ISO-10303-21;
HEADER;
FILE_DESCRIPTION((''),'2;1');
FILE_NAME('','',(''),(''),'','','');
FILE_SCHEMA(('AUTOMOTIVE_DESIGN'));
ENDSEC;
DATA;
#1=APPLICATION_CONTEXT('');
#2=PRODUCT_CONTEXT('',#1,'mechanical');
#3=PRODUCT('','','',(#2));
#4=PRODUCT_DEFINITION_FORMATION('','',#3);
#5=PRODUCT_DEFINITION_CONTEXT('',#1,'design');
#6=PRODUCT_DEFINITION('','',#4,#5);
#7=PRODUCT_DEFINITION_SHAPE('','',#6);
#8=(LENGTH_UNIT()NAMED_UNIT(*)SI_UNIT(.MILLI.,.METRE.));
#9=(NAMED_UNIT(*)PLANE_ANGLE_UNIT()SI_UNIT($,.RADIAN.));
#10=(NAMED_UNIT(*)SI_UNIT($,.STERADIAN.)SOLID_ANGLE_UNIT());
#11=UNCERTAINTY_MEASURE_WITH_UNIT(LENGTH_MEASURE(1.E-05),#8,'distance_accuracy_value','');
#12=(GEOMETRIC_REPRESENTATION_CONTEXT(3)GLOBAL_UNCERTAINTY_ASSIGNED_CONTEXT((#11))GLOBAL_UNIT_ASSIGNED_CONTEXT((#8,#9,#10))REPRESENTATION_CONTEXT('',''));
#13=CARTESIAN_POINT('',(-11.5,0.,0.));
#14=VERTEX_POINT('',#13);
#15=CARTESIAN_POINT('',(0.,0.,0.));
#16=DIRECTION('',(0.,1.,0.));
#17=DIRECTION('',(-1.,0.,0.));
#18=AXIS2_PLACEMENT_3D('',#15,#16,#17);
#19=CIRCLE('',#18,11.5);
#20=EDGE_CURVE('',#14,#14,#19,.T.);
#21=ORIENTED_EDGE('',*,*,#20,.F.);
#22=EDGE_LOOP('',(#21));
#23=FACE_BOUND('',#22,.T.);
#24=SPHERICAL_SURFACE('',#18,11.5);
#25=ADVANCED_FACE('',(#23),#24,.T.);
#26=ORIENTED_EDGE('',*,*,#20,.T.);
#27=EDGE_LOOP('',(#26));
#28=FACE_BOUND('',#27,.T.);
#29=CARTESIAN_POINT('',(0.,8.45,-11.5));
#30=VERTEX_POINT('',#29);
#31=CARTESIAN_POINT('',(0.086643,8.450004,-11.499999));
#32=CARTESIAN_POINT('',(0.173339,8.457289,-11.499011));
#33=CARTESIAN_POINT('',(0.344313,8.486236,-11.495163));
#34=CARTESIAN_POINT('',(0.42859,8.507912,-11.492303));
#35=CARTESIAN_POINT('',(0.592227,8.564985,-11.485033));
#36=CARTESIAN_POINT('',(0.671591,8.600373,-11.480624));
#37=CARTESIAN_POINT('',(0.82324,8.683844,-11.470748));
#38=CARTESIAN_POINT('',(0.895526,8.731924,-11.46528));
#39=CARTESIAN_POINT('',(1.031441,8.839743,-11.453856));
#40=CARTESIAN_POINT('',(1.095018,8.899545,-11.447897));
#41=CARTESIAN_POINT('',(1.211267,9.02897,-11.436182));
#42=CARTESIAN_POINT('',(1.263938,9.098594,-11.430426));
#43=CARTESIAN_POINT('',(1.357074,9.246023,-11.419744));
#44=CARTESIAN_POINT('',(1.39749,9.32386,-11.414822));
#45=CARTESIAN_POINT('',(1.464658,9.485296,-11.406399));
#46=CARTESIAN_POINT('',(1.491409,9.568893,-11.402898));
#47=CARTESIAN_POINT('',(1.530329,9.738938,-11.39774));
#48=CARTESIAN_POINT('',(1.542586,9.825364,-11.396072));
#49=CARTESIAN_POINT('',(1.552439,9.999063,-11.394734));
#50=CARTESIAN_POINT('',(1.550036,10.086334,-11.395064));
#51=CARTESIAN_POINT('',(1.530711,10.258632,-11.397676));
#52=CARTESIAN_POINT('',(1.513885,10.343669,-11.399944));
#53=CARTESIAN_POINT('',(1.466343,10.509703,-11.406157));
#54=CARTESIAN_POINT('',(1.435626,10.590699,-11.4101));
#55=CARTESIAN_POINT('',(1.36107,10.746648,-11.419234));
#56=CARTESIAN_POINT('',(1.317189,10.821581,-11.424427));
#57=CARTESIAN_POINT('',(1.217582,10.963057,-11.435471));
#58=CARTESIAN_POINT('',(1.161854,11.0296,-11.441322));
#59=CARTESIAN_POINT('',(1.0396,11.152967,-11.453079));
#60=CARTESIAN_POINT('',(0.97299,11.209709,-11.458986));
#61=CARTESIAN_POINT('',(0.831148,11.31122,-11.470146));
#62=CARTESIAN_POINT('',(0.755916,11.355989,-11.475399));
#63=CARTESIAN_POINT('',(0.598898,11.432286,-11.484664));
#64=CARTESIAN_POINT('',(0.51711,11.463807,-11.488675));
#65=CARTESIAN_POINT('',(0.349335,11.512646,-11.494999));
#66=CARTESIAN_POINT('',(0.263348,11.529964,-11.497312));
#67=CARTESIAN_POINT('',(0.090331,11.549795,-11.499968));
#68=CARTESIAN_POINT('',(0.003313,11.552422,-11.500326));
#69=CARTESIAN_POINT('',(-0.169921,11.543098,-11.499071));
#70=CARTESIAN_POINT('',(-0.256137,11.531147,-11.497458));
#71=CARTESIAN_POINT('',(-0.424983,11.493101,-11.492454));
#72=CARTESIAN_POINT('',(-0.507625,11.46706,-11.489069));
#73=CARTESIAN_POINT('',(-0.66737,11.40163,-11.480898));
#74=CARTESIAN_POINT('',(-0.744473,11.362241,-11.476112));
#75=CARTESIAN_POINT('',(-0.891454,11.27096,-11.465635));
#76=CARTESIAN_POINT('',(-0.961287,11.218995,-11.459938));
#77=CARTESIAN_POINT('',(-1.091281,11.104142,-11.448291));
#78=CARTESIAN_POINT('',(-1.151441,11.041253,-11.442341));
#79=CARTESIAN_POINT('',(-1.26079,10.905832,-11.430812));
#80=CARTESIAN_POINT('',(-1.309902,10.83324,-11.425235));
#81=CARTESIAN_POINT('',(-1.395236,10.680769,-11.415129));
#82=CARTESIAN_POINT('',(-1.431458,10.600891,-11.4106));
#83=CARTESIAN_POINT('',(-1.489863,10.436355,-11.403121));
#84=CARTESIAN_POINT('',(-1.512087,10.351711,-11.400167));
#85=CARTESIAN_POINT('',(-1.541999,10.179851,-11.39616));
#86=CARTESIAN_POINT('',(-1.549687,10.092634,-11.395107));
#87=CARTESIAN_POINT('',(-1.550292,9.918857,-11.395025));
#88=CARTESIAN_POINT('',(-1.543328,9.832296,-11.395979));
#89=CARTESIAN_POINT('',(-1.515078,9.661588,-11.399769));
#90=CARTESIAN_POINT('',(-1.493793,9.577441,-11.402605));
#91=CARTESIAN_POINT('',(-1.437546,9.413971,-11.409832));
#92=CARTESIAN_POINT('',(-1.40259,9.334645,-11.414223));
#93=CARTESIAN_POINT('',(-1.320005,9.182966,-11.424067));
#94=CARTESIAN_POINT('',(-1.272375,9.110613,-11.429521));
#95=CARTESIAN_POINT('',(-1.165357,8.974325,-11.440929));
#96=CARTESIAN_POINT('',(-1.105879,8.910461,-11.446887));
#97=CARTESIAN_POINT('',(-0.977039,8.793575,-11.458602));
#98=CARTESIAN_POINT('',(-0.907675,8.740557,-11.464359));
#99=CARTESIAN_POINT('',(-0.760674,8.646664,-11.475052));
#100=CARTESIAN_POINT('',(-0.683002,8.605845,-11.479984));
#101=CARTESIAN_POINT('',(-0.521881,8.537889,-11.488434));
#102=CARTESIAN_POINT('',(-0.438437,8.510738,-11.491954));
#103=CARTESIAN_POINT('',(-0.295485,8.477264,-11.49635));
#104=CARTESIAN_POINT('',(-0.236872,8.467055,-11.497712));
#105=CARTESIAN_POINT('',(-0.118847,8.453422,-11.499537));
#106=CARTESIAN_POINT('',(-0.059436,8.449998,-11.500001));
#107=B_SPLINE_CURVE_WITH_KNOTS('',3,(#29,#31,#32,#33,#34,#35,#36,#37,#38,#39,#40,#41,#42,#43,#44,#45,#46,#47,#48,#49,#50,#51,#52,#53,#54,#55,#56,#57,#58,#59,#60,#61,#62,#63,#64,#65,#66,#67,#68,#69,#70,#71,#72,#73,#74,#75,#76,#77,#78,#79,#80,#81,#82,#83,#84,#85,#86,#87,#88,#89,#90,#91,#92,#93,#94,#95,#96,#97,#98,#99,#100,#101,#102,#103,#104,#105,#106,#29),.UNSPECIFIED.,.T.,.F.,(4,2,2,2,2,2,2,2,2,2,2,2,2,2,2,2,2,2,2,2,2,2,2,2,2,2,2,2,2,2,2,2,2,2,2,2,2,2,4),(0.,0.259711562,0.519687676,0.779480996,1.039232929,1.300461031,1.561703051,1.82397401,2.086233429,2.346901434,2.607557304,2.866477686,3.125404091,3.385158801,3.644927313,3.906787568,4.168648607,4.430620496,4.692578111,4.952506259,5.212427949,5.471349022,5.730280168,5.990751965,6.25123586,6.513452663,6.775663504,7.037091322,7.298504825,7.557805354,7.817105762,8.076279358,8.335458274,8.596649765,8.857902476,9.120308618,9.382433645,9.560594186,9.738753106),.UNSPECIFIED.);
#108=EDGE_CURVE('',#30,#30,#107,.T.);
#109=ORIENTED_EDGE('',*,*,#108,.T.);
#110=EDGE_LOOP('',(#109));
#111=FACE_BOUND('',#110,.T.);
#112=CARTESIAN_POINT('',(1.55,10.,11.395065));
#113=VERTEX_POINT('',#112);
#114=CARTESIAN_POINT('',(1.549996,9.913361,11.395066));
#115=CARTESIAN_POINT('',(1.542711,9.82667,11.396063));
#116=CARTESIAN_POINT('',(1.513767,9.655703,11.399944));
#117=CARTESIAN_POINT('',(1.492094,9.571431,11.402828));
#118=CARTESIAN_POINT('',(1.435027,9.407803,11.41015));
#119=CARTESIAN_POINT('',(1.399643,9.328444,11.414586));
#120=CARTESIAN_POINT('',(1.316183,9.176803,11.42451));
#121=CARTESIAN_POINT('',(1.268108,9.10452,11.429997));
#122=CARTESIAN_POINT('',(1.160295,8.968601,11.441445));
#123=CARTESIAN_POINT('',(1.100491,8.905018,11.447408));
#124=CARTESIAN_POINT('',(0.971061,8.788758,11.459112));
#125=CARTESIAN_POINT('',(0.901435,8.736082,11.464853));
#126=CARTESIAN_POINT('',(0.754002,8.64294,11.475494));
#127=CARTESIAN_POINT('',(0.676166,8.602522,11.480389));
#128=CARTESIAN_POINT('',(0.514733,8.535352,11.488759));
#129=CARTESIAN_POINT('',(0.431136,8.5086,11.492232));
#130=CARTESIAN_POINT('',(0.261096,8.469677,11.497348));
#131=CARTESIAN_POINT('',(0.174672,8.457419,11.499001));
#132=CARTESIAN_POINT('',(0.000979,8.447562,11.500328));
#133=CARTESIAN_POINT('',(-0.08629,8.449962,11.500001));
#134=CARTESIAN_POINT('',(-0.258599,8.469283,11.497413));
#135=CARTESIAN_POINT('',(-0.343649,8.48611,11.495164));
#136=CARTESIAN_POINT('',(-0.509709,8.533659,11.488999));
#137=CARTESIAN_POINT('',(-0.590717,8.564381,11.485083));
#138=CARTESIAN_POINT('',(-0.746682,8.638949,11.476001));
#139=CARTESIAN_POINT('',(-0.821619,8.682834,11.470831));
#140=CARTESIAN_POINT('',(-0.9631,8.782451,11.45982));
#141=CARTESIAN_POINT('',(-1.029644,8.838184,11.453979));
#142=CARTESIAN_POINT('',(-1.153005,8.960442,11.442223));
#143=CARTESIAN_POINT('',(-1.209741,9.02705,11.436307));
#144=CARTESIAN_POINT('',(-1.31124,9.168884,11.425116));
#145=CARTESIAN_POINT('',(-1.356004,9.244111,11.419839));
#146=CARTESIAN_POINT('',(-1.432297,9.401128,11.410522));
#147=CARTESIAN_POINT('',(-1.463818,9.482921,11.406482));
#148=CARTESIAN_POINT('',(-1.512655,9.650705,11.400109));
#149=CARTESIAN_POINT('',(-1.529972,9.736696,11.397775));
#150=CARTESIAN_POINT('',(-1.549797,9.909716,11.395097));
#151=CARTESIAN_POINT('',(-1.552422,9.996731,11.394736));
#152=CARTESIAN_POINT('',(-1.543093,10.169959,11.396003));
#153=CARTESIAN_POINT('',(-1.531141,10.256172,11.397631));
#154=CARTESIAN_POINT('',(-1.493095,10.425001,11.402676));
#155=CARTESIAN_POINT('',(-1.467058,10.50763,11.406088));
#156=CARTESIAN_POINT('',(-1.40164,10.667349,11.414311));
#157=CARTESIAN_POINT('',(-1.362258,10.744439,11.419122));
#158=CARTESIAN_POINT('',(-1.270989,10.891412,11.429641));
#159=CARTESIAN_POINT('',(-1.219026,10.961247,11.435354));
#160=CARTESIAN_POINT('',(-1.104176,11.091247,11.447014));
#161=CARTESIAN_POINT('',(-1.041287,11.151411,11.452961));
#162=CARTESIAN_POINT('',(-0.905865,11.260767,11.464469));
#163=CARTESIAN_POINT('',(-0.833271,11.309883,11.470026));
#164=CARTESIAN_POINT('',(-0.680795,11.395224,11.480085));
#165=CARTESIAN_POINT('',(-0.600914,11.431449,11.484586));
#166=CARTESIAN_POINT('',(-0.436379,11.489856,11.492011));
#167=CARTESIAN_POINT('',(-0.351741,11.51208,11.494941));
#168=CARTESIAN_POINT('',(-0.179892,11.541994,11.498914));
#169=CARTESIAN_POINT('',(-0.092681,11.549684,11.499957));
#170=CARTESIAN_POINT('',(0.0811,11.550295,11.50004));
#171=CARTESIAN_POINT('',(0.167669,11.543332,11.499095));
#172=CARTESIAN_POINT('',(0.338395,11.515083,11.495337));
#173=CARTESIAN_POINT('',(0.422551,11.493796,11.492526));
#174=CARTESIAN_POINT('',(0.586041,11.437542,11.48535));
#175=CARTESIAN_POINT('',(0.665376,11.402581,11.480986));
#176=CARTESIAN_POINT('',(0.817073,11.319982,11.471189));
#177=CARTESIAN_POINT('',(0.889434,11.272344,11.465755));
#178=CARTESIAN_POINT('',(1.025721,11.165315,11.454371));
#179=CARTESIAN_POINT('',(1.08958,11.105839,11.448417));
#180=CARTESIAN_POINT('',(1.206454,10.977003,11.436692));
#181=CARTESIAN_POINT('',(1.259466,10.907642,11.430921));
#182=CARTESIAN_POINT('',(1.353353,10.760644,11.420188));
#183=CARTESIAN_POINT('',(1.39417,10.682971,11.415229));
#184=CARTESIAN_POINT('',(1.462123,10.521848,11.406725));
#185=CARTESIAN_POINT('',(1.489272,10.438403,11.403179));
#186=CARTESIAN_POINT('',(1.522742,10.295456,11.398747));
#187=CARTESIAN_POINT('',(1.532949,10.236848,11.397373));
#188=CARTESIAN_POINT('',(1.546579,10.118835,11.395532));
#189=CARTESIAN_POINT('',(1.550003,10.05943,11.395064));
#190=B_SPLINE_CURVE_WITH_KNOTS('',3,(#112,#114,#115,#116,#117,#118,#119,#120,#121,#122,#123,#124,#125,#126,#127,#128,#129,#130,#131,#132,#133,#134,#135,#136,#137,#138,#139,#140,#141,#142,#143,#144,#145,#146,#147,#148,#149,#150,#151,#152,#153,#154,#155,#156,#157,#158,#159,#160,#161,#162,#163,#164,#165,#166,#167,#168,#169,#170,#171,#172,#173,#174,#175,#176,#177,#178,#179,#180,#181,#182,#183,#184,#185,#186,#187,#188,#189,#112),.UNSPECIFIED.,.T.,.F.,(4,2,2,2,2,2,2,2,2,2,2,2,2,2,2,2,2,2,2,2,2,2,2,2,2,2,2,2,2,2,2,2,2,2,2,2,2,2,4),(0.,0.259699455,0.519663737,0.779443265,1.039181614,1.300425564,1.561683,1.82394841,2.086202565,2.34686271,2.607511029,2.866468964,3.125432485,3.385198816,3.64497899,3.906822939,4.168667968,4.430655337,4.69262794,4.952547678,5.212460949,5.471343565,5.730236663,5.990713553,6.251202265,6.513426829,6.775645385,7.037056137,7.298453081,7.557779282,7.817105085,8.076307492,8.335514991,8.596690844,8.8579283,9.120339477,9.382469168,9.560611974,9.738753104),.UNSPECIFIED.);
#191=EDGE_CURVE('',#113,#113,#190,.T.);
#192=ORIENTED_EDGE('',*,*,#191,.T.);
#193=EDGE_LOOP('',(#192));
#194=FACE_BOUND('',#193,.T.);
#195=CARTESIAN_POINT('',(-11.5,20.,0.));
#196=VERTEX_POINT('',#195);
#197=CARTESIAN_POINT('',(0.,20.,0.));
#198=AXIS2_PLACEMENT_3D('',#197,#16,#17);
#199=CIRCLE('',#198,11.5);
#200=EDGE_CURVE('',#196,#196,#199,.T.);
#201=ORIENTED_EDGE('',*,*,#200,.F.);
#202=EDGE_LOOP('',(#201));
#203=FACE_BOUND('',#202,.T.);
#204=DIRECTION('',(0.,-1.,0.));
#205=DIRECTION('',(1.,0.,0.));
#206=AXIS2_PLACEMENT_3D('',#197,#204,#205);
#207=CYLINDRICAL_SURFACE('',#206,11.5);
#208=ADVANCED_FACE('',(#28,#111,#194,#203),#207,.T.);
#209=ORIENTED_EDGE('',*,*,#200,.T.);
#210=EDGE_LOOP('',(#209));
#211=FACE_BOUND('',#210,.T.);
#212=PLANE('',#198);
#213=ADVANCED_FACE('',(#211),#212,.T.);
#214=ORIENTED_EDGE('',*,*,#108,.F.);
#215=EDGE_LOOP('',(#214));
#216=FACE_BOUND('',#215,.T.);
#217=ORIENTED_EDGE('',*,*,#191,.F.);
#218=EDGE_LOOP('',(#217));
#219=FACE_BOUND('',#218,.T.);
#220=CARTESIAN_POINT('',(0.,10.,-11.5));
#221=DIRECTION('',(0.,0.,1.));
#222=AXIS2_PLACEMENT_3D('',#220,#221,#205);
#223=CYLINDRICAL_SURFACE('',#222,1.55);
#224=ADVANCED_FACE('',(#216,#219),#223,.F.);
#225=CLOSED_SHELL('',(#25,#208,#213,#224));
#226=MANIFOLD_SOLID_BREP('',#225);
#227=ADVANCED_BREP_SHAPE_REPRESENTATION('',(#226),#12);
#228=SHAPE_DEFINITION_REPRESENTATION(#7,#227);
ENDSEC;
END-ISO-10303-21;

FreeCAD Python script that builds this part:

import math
import FreeCAD as App
import Part
import Sketcher
from FreeCAD import Vector
Q = App.Units.Quantity

doc = App.newDocument("Part")
params = doc.addObject("Spreadsheet::Sheet", "Params")
for row, (alias, value) in enumerate([
    ("sketch1_radius", "11.5 mm"),
    ("revolution_angle", "180 deg"),
    ("sketch2_diameter", "23 mm"),
    ("pad1_length", "20 mm"),
    ("sketch3_diameter", "3.1 mm"),
    ("pocket1_length", "23 mm"),
], start=1):
    params.set(f"A{row}", alias)
    params.set(f"B{row}", "=" + value)
    params.setAlias(f"B{row}", alias)

body = doc.addObject("PartDesign::Body", "Body")

sketch1 = body.newObject("Sketcher::SketchObject", "Sketch")
sketch1.AttachmentSupport = (doc.getObject("XZ_Plane"), [""])
sketch1.MapMode = "FlatFace"
sketch1.addGeometry(Part.LineSegment(Vector(0, 12, 0), Vector(0, -12, 0)), False)
sketch1.addGeometry(Part.ArcOfCircle(Part.Circle(Vector(0, 0, 0), Vector(0, 0, 1), 12), math.radians(90), math.radians(270)), False)
sketch1.addConstraint(Sketcher.Constraint("Coincident", 0, 1, 1, 1))
sketch1.addConstraint(Sketcher.Constraint("Coincident", 1, 2, 0, 2))
sketch1.addConstraint(Sketcher.Constraint("Vertical", 0))
sketch1.addConstraint(Sketcher.Constraint("Coincident", 1, 3, -1, 1))
sketch1.addConstraint(Sketcher.Constraint("PointOnObject", 0, 1, -2))
sketch1.addConstraint(Sketcher.Constraint("Radius", 1, Q("11.5 mm")))
sketch1.setExpression("Constraints[5]", "Params.sketch1_radius")
revolution = body.newObject("PartDesign::Revolution", "Revolution")
revolution.Profile = sketch1
revolution.ReferenceAxis = (sketch1, ["V_Axis"])
revolution.setExpression("Angle", "Params.revolution_angle")

sketch2 = body.newObject("Sketcher::SketchObject", "Sketch001")
sketch2.AttachmentSupport = (doc.getObject("XZ_Plane"), [""])
sketch2.MapMode = "FlatFace"
sketch2.addGeometry(Part.Circle(Vector(0, 0, 0), Vector(0, 0, 1), 12), False)
sketch2.addConstraint(Sketcher.Constraint("Coincident", 0, 3, -1, 1))
sketch2.addConstraint(Sketcher.Constraint("Diameter", 0, Q("23 mm")))
sketch2.setExpression("Constraints[1]", "Params.sketch2_diameter")
pad1 = body.newObject("PartDesign::Pad", "Pad")
pad1.Profile = sketch2
pad1.setExpression("Length", "Params.pad1_length")
pad1.Reversed = True

sketch3 = body.newObject("Sketcher::SketchObject", "Sketch002")
sketch3.AttachmentSupport = (doc.getObject("XY_Plane"), [""])
sketch3.MapMode = "FlatFace"
sketch3.addGeometry(Part.Circle(Vector(0, 10, 0), Vector(0, 0, 1), 1.6), False)
sketch3.addConstraint(Sketcher.Constraint("PointOnObject", 0, 3, -2))
sketch3.addConstraint(Sketcher.Constraint("Diameter", 0, Q("3.1 mm")))
sketch3.addConstraint(Sketcher.Constraint("DistanceY", -1, 1, 0, 3, Q("10 mm")))
sketch3.setExpression("Constraints[1]", "Params.sketch3_diameter")
pocket1 = body.newObject("PartDesign::Pocket", "Pocket")
pocket1.Profile = sketch3
pocket1.setExpression("Length", "Params.pocket1_length")
pocket1.Midplane = True

doc.recompute()
